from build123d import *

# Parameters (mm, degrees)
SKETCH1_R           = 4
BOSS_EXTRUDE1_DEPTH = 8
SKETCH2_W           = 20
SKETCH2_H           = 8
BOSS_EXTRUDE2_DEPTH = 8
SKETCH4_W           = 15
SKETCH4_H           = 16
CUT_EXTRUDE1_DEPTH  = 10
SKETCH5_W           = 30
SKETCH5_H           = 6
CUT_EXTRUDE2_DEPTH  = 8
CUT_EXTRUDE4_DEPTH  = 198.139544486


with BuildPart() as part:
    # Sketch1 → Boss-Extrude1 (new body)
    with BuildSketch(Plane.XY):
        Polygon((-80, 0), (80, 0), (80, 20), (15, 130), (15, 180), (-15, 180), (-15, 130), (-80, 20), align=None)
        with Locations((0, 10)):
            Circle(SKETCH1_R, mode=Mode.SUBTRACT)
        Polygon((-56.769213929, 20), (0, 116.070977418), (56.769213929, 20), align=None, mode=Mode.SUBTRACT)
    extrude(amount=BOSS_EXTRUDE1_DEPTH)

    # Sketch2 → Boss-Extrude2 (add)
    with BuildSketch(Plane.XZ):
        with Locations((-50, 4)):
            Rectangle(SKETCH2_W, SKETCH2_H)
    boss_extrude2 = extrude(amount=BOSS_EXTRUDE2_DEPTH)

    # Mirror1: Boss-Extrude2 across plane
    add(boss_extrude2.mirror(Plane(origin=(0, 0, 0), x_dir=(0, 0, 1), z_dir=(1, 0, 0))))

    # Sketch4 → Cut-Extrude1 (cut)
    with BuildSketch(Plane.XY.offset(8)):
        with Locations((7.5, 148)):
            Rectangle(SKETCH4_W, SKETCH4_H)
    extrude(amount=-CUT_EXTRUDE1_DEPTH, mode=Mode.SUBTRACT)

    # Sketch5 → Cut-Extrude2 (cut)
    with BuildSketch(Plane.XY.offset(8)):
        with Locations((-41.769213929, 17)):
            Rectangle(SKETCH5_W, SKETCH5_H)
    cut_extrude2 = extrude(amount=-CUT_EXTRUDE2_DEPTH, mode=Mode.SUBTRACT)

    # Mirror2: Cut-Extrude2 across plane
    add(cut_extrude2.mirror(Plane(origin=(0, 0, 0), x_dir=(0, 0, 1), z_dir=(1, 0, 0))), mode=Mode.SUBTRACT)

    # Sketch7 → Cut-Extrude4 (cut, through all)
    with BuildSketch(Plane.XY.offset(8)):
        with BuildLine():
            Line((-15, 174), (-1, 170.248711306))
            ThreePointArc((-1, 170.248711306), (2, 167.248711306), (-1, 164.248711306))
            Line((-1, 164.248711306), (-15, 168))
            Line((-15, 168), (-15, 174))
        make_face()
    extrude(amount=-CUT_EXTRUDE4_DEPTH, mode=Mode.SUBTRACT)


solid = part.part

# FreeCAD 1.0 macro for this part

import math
import FreeCAD as App
import Part
import Sketcher
from FreeCAD import Vector
Q = App.Units.Quantity


def add_polygon(sketch, points):
    """Adds a closed chain of lines whose ends are joined by coincident constraints."""
    first, n = sketch.GeometryCount, len(points)
    for a, b in zip(points, points[1:] + points[:1]):
        sketch.addGeometry(Part.LineSegment(App.Vector(*a, 0), App.Vector(*b, 0)), False)
    for i in range(n):
        sketch.addConstraint(Sketcher.Constraint("Coincident", first + i, 2, first + (i + 1) % n, 1))

doc = App.newDocument("Part")
body = doc.addObject("PartDesign::Body", "Body")

sketch1 = doc.addObject("Sketcher::SketchObject", "Sketch")
body.addObject(sketch1)
sketch1.AttachmentSupport = (doc.XY_Plane, [""])
sketch1.MapMode = "FlatFace"
add_polygon(sketch1, [(-80, 0), (80, 0), (80, 20), (15, 130), (15, 180), (-15, 180), (-15, 130), (-80, 20)])
sketch1.addGeometry(Part.Circle(Vector(0, 10, 0), Vector(0, 0, 1), 4), False)
add_polygon(sketch1, [(56.8, 20), (-56.8, 20), (0, 116.1)])
sketch1.addConstraint(Sketcher.Constraint("Horizontal", 0))
sketch1.addConstraint(Sketcher.Constraint("Vertical", 1))
sketch1.addConstraint(Sketcher.Constraint("Vertical", 3))
sketch1.addConstraint(Sketcher.Constraint("Horizontal", 4))
sketch1.addConstraint(Sketcher.Constraint("Vertical", 5))
sketch1.addConstraint(Sketcher.Constraint("Vertical", 7))
sketch1.addConstraint(Sketcher.Constraint("Horizontal", 9))
sketch1.addConstraint(Sketcher.Constraint("Symmetric", 0, 2, 7, 2, -1, 1))
sketch1.addConstraint(Sketcher.Constraint("Symmetric", 2, 2, 5, 2, -2))
sketch1.addConstraint(Sketcher.Constraint("PointOnObject", 8, 3, -2))
sketch1.addConstraint(Sketcher.Constraint("PointOnObject", 10, 2, -2))
sketch1.addConstraint(Sketcher.Constraint("Parallel", 6, 10))
sketch1.addConstraint(Sketcher.Constraint("Parallel", 2, 11))
sketch1.addConstraint(Sketcher.Constraint("Horizontal", 1, 2, 6, 2))
sketch1.addConstraint(Sketcher.Constraint("Horizontal", 6, 2, 9, 2))
sketch1.addConstraint(Sketcher.Constraint("Diameter", 8, Q("8 mm")))
sketch1.addConstraint(Sketcher.Constraint("DistanceX", 0, 1, 0, 2, Q("160 mm")))
sketch1.addConstraint(Sketcher.Constraint("DistanceX", 4, 2, 4, 1, Q("30 mm")))
sketch1.addConstraint(Sketcher.Constraint("DistanceY", 1, 1, 1, 2, Q("20 mm")))
sketch1.addConstraint(Sketcher.Constraint("DistanceY", 3, 1, 3, 2, Q("50 mm")))
sketch1.addConstraint(Sketcher.Constraint("DistanceY", -1, 1, 8, 3, Q("10 mm")))
sketch1.addConstraint(Sketcher.Constraint("DistanceY", -1, 1, 2, 2, Q("130 mm")))
sketch1.addConstraint(Sketcher.Constraint("DistanceX", 9, 2, 9, 1, Q("113.538428 mm")))
pad1 = doc.addObject("PartDesign::Pad", "Pad")
body.addObject(pad1)
pad1.Profile = sketch1
pad1.Length = 8

sketch2 = doc.addObject("Sketcher::SketchObject", "Sketch001")
body.addObject(sketch2)
sketch2.AttachmentSupport = (doc.XZ_Plane, [""])
sketch2.MapMode = "FlatFace"
add_polygon(sketch2, [(-60, 8), (-60, 0), (-40, 0), (-40, 8)])
sketch2.addConstraint(Sketcher.Constraint("Vertical", 0))
sketch2.addConstraint(Sketcher.Constraint("Horizontal", 1))
sketch2.addConstraint(Sketcher.Constraint("Vertical", 2))
sketch2.addConstraint(Sketcher.Constraint("Horizontal", 3))
sketch2.addConstraint(Sketcher.Constraint("PointOnObject", 0, 2, -1))
sketch2.addConstraint(Sketcher.Constraint("DistanceX", 1, 1, 1, 2, Q("20 mm")))
sketch2.addConstraint(Sketcher.Constraint("DistanceY", 0, 2, 0, 1, Q("8 mm")))
sketch2.addConstraint(Sketcher.Constraint("DistanceX", 0, 2, -1, 1, Q("60 mm")))
pad2 = doc.addObject("PartDesign::Pad", "Pad001")
body.addObject(pad2)
pad2.Profile = sketch2
pad2.Length = 8
doc.recompute()

mirrored = doc.addObject("PartDesign::Mirrored", "Mirrored")
body.addObject(mirrored)
mirrored.Originals = [pad2]
mirrored.MirrorPlane = (doc.YZ_Plane, [""])
body.Tip = mirrored

sketch3 = doc.addObject("Sketcher::SketchObject", "Sketch002")
body.addObject(sketch3)
sketch3.AttachmentSupport = (doc.XY_Plane, [""])
sketch3.MapMode = "FlatFace"
sketch3.AttachmentOffset = App.Placement(Vector(0, 0, 8), App.Rotation())
add_polygon(sketch3, [(0, 156), (0, 140), (15, 140), (15, 156)])
sketch3.addConstraint(Sketcher.Constraint("Vertical", 0))
sketch3.addConstraint(Sketcher.Constraint("Horizontal", 1))
sketch3.addConstraint(Sketcher.Constraint("Vertical", 2))
sketch3.addConstraint(Sketcher.Constraint("Horizontal", 3))
sketch3.addConstraint(Sketcher.Constraint("PointOnObject", 0, 2, -2))
sketch3.addConstraint(Sketcher.Constraint("DistanceX", 1, 1, 1, 2, Q("15 mm")))
sketch3.addConstraint(Sketcher.Constraint("DistanceY", 0, 2, 0, 1, Q("16 mm")))
sketch3.addConstraint(Sketcher.Constraint("DistanceY", -1, 1, 0, 2, Q("140 mm")))
pocket1 = doc.addObject("PartDesign::Pocket", "Pocket")
body.addObject(pocket1)
pocket1.Profile = sketch3
pocket1.Length = 10

sketch4 = doc.addObject("Sketcher::SketchObject", "Sketch003")
body.addObject(sketch4)
sketch4.AttachmentSupport = (doc.XY_Plane, [""])
sketch4.MapMode = "FlatFace"
sketch4.AttachmentOffset = App.Placement(Vector(0, 0, 8), App.Rotation())
add_polygon(sketch4, [(-57, 20), (-57, 14), (-27, 14), (-27, 20)])
sketch4.addConstraint(Sketcher.Constraint("Vertical", 0))
sketch4.addConstraint(Sketcher.Constraint("Horizontal", 1))
sketch4.addConstraint(Sketcher.Constraint("Vertical", 2))
sketch4.addConstraint(Sketcher.Constraint("Horizontal", 3))
sketch4.addConstraint(Sketcher.Constraint("DistanceX", 1, 1, 1, 2, Q("30 mm")))
sketch4.addConstraint(Sketcher.Constraint("DistanceY", 0, 2, 0, 1, Q("6 mm")))
sketch4.addConstraint(Sketcher.Constraint("DistanceY", -1, 1, 0, 2, Q("14 mm")))
sketch4.addConstraint(Sketcher.Constraint("DistanceX", 0, 2, -1, 1, Q("56.769214 mm")))
pocket2 = doc.addObject("PartDesign::Pocket", "Pocket001")
body.addObject(pocket2)
pocket2.Profile = sketch4
pocket2.Length = 8
doc.recompute()

mirrored2 = doc.addObject("PartDesign::Mirrored", "Mirrored001")
body.addObject(mirrored2)
mirrored2.Originals = [pocket2]
mirrored2.MirrorPlane = (doc.YZ_Plane, [""])
body.Tip = mirrored2

sketch5 = doc.addObject("Sketcher::SketchObject", "Sketch004")
body.addObject(sketch5)
sketch5.AttachmentSupport = (doc.XY_Plane, [""])
sketch5.MapMode = "FlatFace"
sketch5.AttachmentOffset = App.Placement(Vector(0, 0, 8), App.Rotation())
sketch5.addGeometry(Part.LineSegment(Vector(-1, 170.2, 0), Vector(-15, 174, 0)), False)
sketch5.addGeometry(Part.LineSegment(Vector(-15, 174, 0), Vector(-15, 168, 0)), False)
sketch5.addGeometry(Part.LineSegment(Vector(-15, 168, 0), Vector(-1, 164.2, 0)), False)
sketch5.addGeometry(Part.ArcOfCircle(Part.Circle(Vector(-1, 167.2, 0), Vector(0, 0, 1), 3), math.radians(-90), math.radians(90)), False)
sketch5.addConstraint(Sketcher.Constraint("Coincident", 0, 2, 1, 1))
sketch5.addConstraint(Sketcher.Constraint("Coincident", 1, 2, 2, 1))
sketch5.addConstraint(Sketcher.Constraint("Coincident", 2, 2, 3, 1))
sketch5.addConstraint(Sketcher.Constraint("Coincident", 3, 2, 0, 1))
sketch5.addConstraint(Sketcher.Constraint("Vertical", 1))
sketch5.addConstraint(Sketcher.Constraint("Parallel", 0, 2))
sketch5.addConstraint(Sketcher.Constraint("Vertical", 3, 3, 2, 2))
sketch5.addConstraint(Sketcher.Constraint("Vertical", 2, 2, 3, 2))
sketch5.addConstraint(Sketcher.Constraint("Radius", 3, Q("3 mm")))
sketch5.addConstraint(Sketcher.Constraint("Angle", 0, Q("165 deg")))
sketch5.addConstraint(Sketcher.Constraint("DistanceX", 3, 3, -1, 1, Q("1 mm")))
sketch5.addConstraint(Sketcher.Constraint("DistanceX", 0, 2, -1, 1, Q("15 mm")))
sketch5.addConstraint(Sketcher.Constraint("DistanceY", -1, 1, 0, 2, Q("174 mm")))
pocket3 = doc.addObject("PartDesign::Pocket", "Pocket002")
body.addObject(pocket3)
pocket3.Profile = sketch5
pocket3.Type = "ThroughAll"

doc.recompute()
